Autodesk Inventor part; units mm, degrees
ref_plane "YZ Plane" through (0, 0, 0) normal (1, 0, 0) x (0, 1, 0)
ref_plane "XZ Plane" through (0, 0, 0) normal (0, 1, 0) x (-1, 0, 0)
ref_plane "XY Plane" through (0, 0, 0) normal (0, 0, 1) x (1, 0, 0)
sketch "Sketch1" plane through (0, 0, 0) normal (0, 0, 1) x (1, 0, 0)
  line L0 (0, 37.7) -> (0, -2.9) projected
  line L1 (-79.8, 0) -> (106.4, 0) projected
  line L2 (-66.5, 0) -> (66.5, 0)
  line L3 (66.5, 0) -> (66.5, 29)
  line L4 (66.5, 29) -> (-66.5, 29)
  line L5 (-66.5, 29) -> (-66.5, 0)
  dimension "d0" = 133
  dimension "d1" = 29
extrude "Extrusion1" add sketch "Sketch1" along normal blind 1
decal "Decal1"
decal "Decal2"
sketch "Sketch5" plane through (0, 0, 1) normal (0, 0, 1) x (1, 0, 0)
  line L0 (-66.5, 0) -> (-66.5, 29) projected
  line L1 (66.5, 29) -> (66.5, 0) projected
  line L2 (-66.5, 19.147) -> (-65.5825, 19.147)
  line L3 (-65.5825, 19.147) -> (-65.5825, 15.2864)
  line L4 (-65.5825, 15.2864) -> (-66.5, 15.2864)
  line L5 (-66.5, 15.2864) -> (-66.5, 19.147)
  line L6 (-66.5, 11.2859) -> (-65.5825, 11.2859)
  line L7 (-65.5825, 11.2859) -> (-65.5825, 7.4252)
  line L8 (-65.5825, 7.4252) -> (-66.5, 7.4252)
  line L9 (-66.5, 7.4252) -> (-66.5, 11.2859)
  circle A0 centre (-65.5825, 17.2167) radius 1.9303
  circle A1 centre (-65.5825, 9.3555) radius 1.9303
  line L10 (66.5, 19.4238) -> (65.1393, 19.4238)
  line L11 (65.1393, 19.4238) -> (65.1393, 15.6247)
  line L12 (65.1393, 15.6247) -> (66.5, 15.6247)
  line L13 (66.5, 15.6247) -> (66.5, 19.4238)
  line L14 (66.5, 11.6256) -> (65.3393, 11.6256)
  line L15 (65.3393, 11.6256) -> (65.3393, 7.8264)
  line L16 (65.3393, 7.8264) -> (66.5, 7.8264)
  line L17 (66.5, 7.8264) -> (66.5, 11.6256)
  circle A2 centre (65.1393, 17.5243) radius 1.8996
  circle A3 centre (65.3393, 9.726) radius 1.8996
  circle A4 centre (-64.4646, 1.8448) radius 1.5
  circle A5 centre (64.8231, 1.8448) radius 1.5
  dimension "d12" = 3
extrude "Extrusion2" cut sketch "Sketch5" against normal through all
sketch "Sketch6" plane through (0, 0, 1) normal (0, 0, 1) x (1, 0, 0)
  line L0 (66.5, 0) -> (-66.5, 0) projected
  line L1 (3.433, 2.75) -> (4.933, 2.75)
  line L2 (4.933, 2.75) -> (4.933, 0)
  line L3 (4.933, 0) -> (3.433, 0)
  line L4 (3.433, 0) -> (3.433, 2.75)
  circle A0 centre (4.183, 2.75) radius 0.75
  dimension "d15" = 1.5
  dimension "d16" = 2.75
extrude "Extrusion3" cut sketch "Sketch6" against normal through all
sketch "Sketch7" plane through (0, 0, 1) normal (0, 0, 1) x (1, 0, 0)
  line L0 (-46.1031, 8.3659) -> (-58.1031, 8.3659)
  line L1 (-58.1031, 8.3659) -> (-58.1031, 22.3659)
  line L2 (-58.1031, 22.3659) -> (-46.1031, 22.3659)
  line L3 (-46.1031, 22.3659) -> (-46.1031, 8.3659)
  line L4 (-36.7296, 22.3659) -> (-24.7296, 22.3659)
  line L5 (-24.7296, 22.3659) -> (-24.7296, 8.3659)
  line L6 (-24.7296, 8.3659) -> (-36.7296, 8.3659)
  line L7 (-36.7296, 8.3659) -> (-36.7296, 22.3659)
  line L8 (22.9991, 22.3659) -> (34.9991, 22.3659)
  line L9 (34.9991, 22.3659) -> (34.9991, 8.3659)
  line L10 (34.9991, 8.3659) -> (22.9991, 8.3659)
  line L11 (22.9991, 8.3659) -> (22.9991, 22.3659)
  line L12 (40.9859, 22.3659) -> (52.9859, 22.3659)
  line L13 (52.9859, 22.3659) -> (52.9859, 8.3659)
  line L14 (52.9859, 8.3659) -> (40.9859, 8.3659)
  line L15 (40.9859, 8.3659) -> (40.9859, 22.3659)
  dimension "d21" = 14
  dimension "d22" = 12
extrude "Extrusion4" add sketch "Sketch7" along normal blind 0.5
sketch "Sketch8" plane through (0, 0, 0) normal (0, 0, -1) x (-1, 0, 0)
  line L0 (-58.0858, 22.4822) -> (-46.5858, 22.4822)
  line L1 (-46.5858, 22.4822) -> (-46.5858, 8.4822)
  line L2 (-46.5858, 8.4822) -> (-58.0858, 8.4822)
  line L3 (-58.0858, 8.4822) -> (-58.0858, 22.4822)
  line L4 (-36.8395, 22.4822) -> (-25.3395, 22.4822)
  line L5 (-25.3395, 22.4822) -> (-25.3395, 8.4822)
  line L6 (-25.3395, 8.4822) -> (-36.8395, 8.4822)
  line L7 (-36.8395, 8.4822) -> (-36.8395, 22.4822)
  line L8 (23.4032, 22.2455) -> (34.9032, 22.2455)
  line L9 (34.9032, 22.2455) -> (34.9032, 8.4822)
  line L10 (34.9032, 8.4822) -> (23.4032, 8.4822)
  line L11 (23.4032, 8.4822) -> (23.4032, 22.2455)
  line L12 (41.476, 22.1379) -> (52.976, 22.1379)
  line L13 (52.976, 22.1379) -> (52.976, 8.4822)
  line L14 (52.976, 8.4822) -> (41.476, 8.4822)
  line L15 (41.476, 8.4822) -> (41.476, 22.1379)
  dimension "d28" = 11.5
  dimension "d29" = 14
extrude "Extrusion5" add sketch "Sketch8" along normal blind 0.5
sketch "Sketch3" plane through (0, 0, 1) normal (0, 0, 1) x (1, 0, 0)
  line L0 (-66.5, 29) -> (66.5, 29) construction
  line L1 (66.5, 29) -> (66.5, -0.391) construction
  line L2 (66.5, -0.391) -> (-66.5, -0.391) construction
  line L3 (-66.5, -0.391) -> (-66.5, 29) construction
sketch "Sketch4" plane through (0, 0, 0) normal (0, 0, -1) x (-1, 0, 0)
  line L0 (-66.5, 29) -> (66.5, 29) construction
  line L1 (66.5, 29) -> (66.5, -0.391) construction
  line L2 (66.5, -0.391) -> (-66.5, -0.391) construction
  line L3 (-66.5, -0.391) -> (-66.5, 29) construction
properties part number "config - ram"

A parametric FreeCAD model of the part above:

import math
import FreeCAD as App
import Part
import Sketcher
from FreeCAD import Vector


def add_polygon(sketch, points):
    """Adds a closed chain of lines whose ends are joined by coincident constraints."""
    first, n = sketch.GeometryCount, len(points)
    for a, b in zip(points, points[1:] + points[:1]):
        sketch.addGeometry(Part.LineSegment(App.Vector(*a, 0), App.Vector(*b, 0)), False)
    for i in range(n):
        sketch.addConstraint(Sketcher.Constraint("Coincident", first + i, 2, first + (i + 1) % n, 1))

doc = App.newDocument("Part")
body = doc.addObject("PartDesign::Body", "Body")

# Sketch on XY plane
sketch1 = body.newObject("Sketcher::SketchObject", "Sketch")
sketch1.AttachmentSupport = (doc.getObject("XY_Plane"), [""])
sketch1.MapMode = "FlatFace"
add_polygon(sketch1, [(66.5, 29), (-66.5, 29), (-66.5, 0), (66.5, 0)])  # lines 0-3
sketch1.addConstraint(Sketcher.Constraint("Horizontal", 0))
sketch1.addConstraint(Sketcher.Constraint("Vertical", 1))
sketch1.addConstraint(Sketcher.Constraint("Horizontal", 2))
sketch1.addConstraint(Sketcher.Constraint("Vertical", 3))
sketch1.addConstraint(Sketcher.Constraint("Symmetric", 1, 2, 2, 2, -1, 1))
sketch1.addConstraint(Sketcher.Constraint("DistanceX", 0, 2, 0, 1, 133.0))
sketch1.addConstraint(Sketcher.Constraint("DistanceY", 1, 2, 1, 1, 29.0))
pad1 = body.newObject("PartDesign::Pad", "Pad")
pad1.Profile = sketch1
pad1.Length = 1

# Sketch on XY plane
sketch2 = body.newObject("Sketcher::SketchObject", "Sketch001")
sketch2.AttachmentSupport = (doc.getObject("XY_Plane"), [""])
sketch2.MapMode = "FlatFace"
sketch2.AttachmentOffset = App.Placement(Vector(0, 0, 1), App.Rotation())
sketch2.addGeometry(Part.LineSegment(Vector(-66.5, 15.518391, 0), Vector(-66.5, 15.2864, 0)), False)
sketch2.addGeometry(Part.LineSegment(Vector(-66.5, 15.2864, 0), Vector(-65.5825, 15.2864, 0)), False)
sketch2.addGeometry(Part.ArcOfCircle(Part.Circle(Vector(-65.5825, 17.2167, 0), Vector(0, 0, 1), 1.9303), math.radians(-90), math.radians(90)), False)
sketch2.addGeometry(Part.LineSegment(Vector(-65.5825, 19.147, 0), Vector(-66.5, 19.147, 0)), False)
sketch2.addGeometry(Part.LineSegment(Vector(-66.5, 19.147, 0), Vector(-66.5, 18.915009, 0)), False)
sketch2.addGeometry(Part.ArcOfCircle(Part.Circle(Vector(-65.5825, 17.2167, 0), Vector(0, 0, 1), 1.9303), math.radians(118.379843), math.radians(241.620157)), False)
sketch2.addGeometry(Part.LineSegment(Vector(-65.5825, 11.2859, 0), Vector(-66.5, 11.2859, 0)), False)
sketch2.addGeometry(Part.LineSegment(Vector(-66.5, 11.2859, 0), Vector(-66.5, 11.053809, 0)), False)
sketch2.addGeometry(Part.ArcOfCircle(Part.Circle(Vector(-65.5825, 9.3555, 0), Vector(0, 0, 1), 1.9303), math.radians(118.379843), math.radians(241.620157)), False)
sketch2.addGeometry(Part.LineSegment(Vector(-66.5, 7.657191, 0), Vector(-66.5, 7.4252, 0)), False)
sketch2.addGeometry(Part.LineSegment(Vector(-66.5, 7.4252, 0), Vector(-65.5825, 7.4252, 0)), False)
sketch2.addGeometry(Part.ArcOfCircle(Part.Circle(Vector(-65.5825, 9.3555, 0), Vector(0, 0, 1), 1.9303), math.radians(-90), math.radians(90)), False)
sketch2.addGeometry(Part.LineSegment(Vector(66.5, 11.229747, 0), Vector(66.5, 11.6256, 0)), False)
sketch2.addGeometry(Part.LineSegment(Vector(66.5, 11.6256, 0), Vector(65.3393, 11.6256, 0)), False)
sketch2.addGeometry(Part.ArcOfCircle(Part.Circle(Vector(65.3393, 9.726, 0), Vector(0, 0, 1), 1.8996), math.radians(90), math.radians(270)), False)
sketch2.addGeometry(Part.LineSegment(Vector(65.3393, 7.8264, 0), Vector(66.5, 7.8264, 0)), False)
sketch2.addGeometry(Part.LineSegment(Vector(66.5, 7.8264, 0), Vector(66.5, 8.222253, 0)), False)
sketch2.addGeometry(Part.ArcOfCircle(Part.Circle(Vector(65.3393, 9.726, 0), Vector(0, 0, 1), 1.8996), math.radians(-52.336464), math.radians(52.336464)), False)
sketch2.addGeometry(Part.LineSegment(Vector(65.1393, 15.6247, 0), Vector(66.5, 15.6247, 0)), False)
sketch2.addGeometry(Part.LineSegment(Vector(66.5, 15.6247, 0), Vector(66.5, 16.19879, 0)), False)
sketch2.addGeometry(Part.ArcOfCircle(Part.Circle(Vector(65.1393, 17.5243, 0), Vector(0, 0, 1), 1.8996), math.radians(-44.249445), math.radians(44.249445)), False)
sketch2.addGeometry(Part.LineSegment(Vector(66.5, 18.84981, 0), Vector(66.5, 19.4238, 0)), False)
sketch2.addGeometry(Part.LineSegment(Vector(66.5, 19.4238, 0), Vector(65.1393, 19.4238, 0)), False)
sketch2.addGeometry(Part.ArcOfCircle(Part.Circle(Vector(65.1393, 17.5243, 0), Vector(0, 0, 1), 1.8996), math.radians(90), math.radians(270)), False)
sketch2.addGeometry(Part.Circle(Vector(-64.4646, 1.8448, 0), Vector(0, 0, 1), 1.5), False)
sketch2.addGeometry(Part.Circle(Vector(64.8231, 1.8448, 0), Vector(0, 0, 1), 1.5), False)
sketch2.addConstraint(Sketcher.Constraint("Coincident", 0, 2, 1, 1))
sketch2.addConstraint(Sketcher.Constraint("Tangent", 1, 2, 2, 1))
sketch2.addConstraint(Sketcher.Constraint("Tangent", 2, 2, 3, 1))
sketch2.addConstraint(Sketcher.Constraint("Coincident", 3, 2, 4, 1))
sketch2.addConstraint(Sketcher.Constraint("Coincident", 4, 2, 5, 1))
sketch2.addConstraint(Sketcher.Constraint("Coincident", 5, 2, 0, 1))
sketch2.addConstraint(Sketcher.Constraint("Coincident", 6, 2, 7, 1))
sketch2.addConstraint(Sketcher.Constraint("Coincident", 7, 2, 8, 1))
sketch2.addConstraint(Sketcher.Constraint("Coincident", 8, 2, 9, 1))
sketch2.addConstraint(Sketcher.Constraint("Coincident", 9, 2, 10, 1))
sketch2.addConstraint(Sketcher.Constraint("Tangent", 10, 2, 11, 1))
sketch2.addConstraint(Sketcher.Constraint("Tangent", 11, 2, 6, 1))
sketch2.addConstraint(Sketcher.Constraint("Coincident", 12, 2, 13, 1))
sketch2.addConstraint(Sketcher.Constraint("Tangent", 13, 2, 14, 1))
sketch2.addConstraint(Sketcher.Constraint("Tangent", 14, 2, 15, 1))
sketch2.addConstraint(Sketcher.Constraint("Coincident", 15, 2, 16, 1))
sketch2.addConstraint(Sketcher.Constraint("Coincident", 16, 2, 17, 1))
sketch2.addConstraint(Sketcher.Constraint("Coincident", 17, 2, 12, 1))
sketch2.addConstraint(Sketcher.Constraint("Coincident", 18, 2, 19, 1))
sketch2.addConstraint(Sketcher.Constraint("Coincident", 19, 2, 20, 1))
sketch2.addConstraint(Sketcher.Constraint("Coincident", 20, 2, 21, 1))
sketch2.addConstraint(Sketcher.Constraint("Coincident", 21, 2, 22, 1))
sketch2.addConstraint(Sketcher.Constraint("Tangent", 22, 2, 23, 1))
sketch2.addConstraint(Sketcher.Constraint("Tangent", 23, 2, 18, 1))
sketch2.addConstraint(Sketcher.Constraint("Vertical", 0))
sketch2.addConstraint(Sketcher.Constraint("Horizontal", 1))
sketch2.addConstraint(Sketcher.Constraint("Horizontal", 3))
sketch2.addConstraint(Sketcher.Constraint("Vertical", 4))
sketch2.addConstraint(Sketcher.Constraint("Horizontal", 6))
sketch2.addConstraint(Sketcher.Constraint("Vertical", 7))
sketch2.addConstraint(Sketcher.Constraint("Vertical", 9))
sketch2.addConstraint(Sketcher.Constraint("Horizontal", 10))
sketch2.addConstraint(Sketcher.Constraint("Vertical", 12))
sketch2.addConstraint(Sketcher.Constraint("Horizontal", 13))
sketch2.addConstraint(Sketcher.Constraint("Horizontal", 15))
sketch2.addConstraint(Sketcher.Constraint("Vertical", 16))
sketch2.addConstraint(Sketcher.Constraint("Horizontal", 18))
sketch2.addConstraint(Sketcher.Constraint("Vertical", 19))
sketch2.addConstraint(Sketcher.Constraint("Vertical", 21))
sketch2.addConstraint(Sketcher.Constraint("Horizontal", 22))
sketch2.addConstraint(Sketcher.Constraint("Coincident", 5, 3, 2, 3))
sketch2.addConstraint(Sketcher.Constraint("Coincident", 11, 3, 8, 3))
sketch2.addConstraint(Sketcher.Constraint("Coincident", 17, 3, 14, 3))
sketch2.addConstraint(Sketcher.Constraint("Coincident", 23, 3, 20, 3))
sketch2.addConstraint(Sketcher.Constraint("Equal", 2, 5))
sketch2.addConstraint(Sketcher.Constraint("Equal", 5, 8))
sketch2.addConstraint(Sketcher.Constraint("Equal", 8, 11))
sketch2.addConstraint(Sketcher.Constraint("Equal", 14, 17))
sketch2.addConstraint(Sketcher.Constraint("Equal", 17, 20))
sketch2.addConstraint(Sketcher.Constraint("Equal", 20, 23))
sketch2.addConstraint(Sketcher.Constraint("Equal", 24, 25))
sketch2.addConstraint(Sketcher.Constraint("Horizontal", 24, 3, 25, 3))
sketch2.addConstraint(Sketcher.Constraint("Vertical", 5, 3, 8, 3))
sketch2.addConstraint(Sketcher.Constraint("Vertical", 0, 2, 3, 2))
sketch2.addConstraint(Sketcher.Constraint("Vertical", 5, 2, 6, 2))
sketch2.addConstraint(Sketcher.Constraint("Vertical", 7, 2, 8, 2))
sketch2.addConstraint(Sketcher.Constraint("Vertical", 12, 2, 15, 2))
sketch2.addConstraint(Sketcher.Constraint("Vertical", 17, 2, 18, 2))
sketch2.addConstraint(Sketcher.Constraint("Vertical", 19, 2, 20, 2))
sketch2.addConstraint(Sketcher.Constraint("Diameter", 24, 3.0))
sketch2.addConstraint(Sketcher.Constraint("DistanceX", 0, 2, -1, 1, 66.5))
sketch2.addConstraint(Sketcher.Constraint("DistanceX", -1, 1, 12, 2, 66.5))
sketch2.addConstraint(Sketcher.Constraint("Radius", 2, 1.9303))
sketch2.addConstraint(Sketcher.Constraint("Radius", 14, 1.8996))
sketch2.addConstraint(Sketcher.Constraint("DistanceX", 20, 3, 14, 3, 0.2))
sketch2.addConstraint(Sketcher.Constraint("DistanceY", 0, 2, 0, 1, 0.232))
sketch2.addConstraint(Sketcher.Constraint("DistanceY", 19, 1, 19, 2, 0.574))
sketch2.addConstraint(Sketcher.Constraint("DistanceY", -1, 1, 14, 3, 9.726))
sketch2.addConstraint(Sketcher.Constraint("DistanceX", -1, 1, 25, 3, 64.823))
sketch2.addConstraint(Sketcher.Constraint("DistanceY", -1, 1, 2, 2, 19.147))
sketch2.addConstraint(Sketcher.Constraint("DistanceY", -1, 1, 6, 2, 11.286))
sketch2.addConstraint(Sketcher.Constraint("DistanceX", 8, 3, 24, 3, 1.118))
sketch2.addConstraint(Sketcher.Constraint("DistanceY", 24, 3, 2, 3, 15.372))
sketch2.addConstraint(Sketcher.Constraint("DistanceY", 12, 2, 18, 2, 3.999))
pocket1 = body.newObject("PartDesign::Pocket", "Pocket")
pocket1.Profile = sketch2
pocket1.Type = "ThroughAll"

# Sketch on XY plane
sketch3 = body.newObject("Sketcher::SketchObject", "Sketch002")
sketch3.AttachmentSupport = (doc.getObject("XY_Plane"), [""])
sketch3.MapMode = "FlatFace"
sketch3.AttachmentOffset = App.Placement(Vector(0, 0, 1), App.Rotation())
sketch3.addGeometry(Part.LineSegment(Vector(3.433, 0, 0), Vector(4.933, 0, 0)), False)
sketch3.addGeometry(Part.LineSegment(Vector(4.933, 0, 0), Vector(4.933, 2.75, 0)), False)
sketch3.addGeometry(Part.ArcOfCircle(Part.Circle(Vector(4.183, 2.75, 0), Vector(0, 0, 1), 0.75), math.radians(0), math.radians(180)), False)
sketch3.addGeometry(Part.LineSegment(Vector(3.433, 2.75, 0), Vector(3.433, 0, 0)), False)
sketch3.addConstraint(Sketcher.Constraint("Coincident", 0, 2, 1, 1))
sketch3.addConstraint(Sketcher.Constraint("Tangent", 1, 2, 2, 1))
sketch3.addConstraint(Sketcher.Constraint("Tangent", 2, 2, 3, 1))
sketch3.addConstraint(Sketcher.Constraint("Coincident", 3, 2, 0, 1))
sketch3.addConstraint(Sketcher.Constraint("Horizontal", 0))
sketch3.addConstraint(Sketcher.Constraint("Vertical", 1))
sketch3.addConstraint(Sketcher.Constraint("Vertical", 3))
sketch3.addConstraint(Sketcher.Constraint("PointOnObject", 0, 2, -1))
sketch3.addConstraint(Sketcher.Constraint("Radius", 2, 0.75))
sketch3.addConstraint(Sketcher.Constraint("DistanceY", 1, 1, 1, 2, 2.75))
sketch3.addConstraint(Sketcher.Constraint("DistanceX", -1, 1, 2, 3, 4.183))
pocket2 = body.newObject("PartDesign::Pocket", "Pocket001")
pocket2.Profile = sketch3
pocket2.Type = "ThroughAll"

# Sketch on XY plane
sketch4 = body.newObject("Sketcher::SketchObject", "Sketch003")
sketch4.AttachmentSupport = (doc.getObject("XY_Plane"), [""])
sketch4.MapMode = "FlatFace"
sketch4.AttachmentOffset = App.Placement(Vector(0, 0, 1), App.Rotation())
add_polygon(sketch4, [(-58.1031, 8.3659), (-46.1031, 8.3659), (-46.1031, 22.3659), (-58.1031, 22.3659)])  # lines 0-3
add_polygon(sketch4, [(-24.7296, 22.3659), (-36.7296, 22.3659), (-36.7296, 8.3659), (-24.7296, 8.3659)])  # lines 4-7
add_polygon(sketch4, [(34.9991, 22.3659), (22.9991, 22.3659), (22.9991, 8.3659), (34.9991, 8.3659)])  # lines 8-11
add_polygon(sketch4, [(52.9859, 22.3659), (40.9859, 22.3659), (40.9859, 8.3659), (52.9859, 8.3659)])  # lines 12-15
sketch4.addConstraint(Sketcher.Constraint("Horizontal", 0))
sketch4.addConstraint(Sketcher.Constraint("Vertical", 1))
sketch4.addConstraint(Sketcher.Constraint("Horizontal", 2))
sketch4.addConstraint(Sketcher.Constraint("Vertical", 3))
sketch4.addConstraint(Sketcher.Constraint("Horizontal", 4))
sketch4.addConstraint(Sketcher.Constraint("Vertical", 5))
sketch4.addConstraint(Sketcher.Constraint("Horizontal", 6))
sketch4.addConstraint(Sketcher.Constraint("Vertical", 7))
sketch4.addConstraint(Sketcher.Constraint("Horizontal", 8))
sketch4.addConstraint(Sketcher.Constraint("Vertical", 9))
sketch4.addConstraint(Sketcher.Constraint("Horizontal", 10))
sketch4.addConstraint(Sketcher.Constraint("Vertical", 11))
sketch4.addConstraint(Sketcher.Constraint("Horizontal", 12))
sketch4.addConstraint(Sketcher.Constraint("Vertical", 13))
sketch4.addConstraint(Sketcher.Constraint("Horizontal", 14))
sketch4.addConstraint(Sketcher.Constraint("Vertical", 15))
sketch4.addConstraint(Sketcher.Constraint("Horizontal", 2, 2, 4, 2))
sketch4.addConstraint(Sketcher.Constraint("Horizontal", 3, 2, 5, 2))
sketch4.addConstraint(Sketcher.Constraint("Horizontal", 7, 2, 8, 2))
sketch4.addConstraint(Sketcher.Constraint("Horizontal", 6, 2, 9, 2))
sketch4.addConstraint(Sketcher.Constraint("Horizontal", 11, 2, 12, 2))
sketch4.addConstraint(Sketcher.Constraint("Horizontal", 10, 2, 13, 2))
sketch4.addConstraint(Sketcher.Constraint("Equal", 2, 4))
sketch4.addConstraint(Sketcher.Constraint("Equal", 6, 8))
sketch4.addConstraint(Sketcher.Constraint("Equal", 10, 12))
sketch4.addConstraint(Sketcher.Constraint("DistanceX", 0, 1, 0, 2, 12.0))
sketch4.addConstraint(Sketcher.Constraint("DistanceY", 1, 1, 1, 2, 14.0))
sketch4.addConstraint(Sketcher.Constraint("DistanceX", 0, 2, -1, 1, 46.103))
sketch4.addConstraint(Sketcher.Constraint("DistanceY", -1, 1, 0, 2, 8.366))
sketch4.addConstraint(Sketcher.Constraint("DistanceX", -1, 1, 8, 2, 22.999))
sketch4.addConstraint(Sketcher.Constraint("DistanceX", -1, 1, 12, 2, 40.986))
sketch4.addConstraint(Sketcher.Constraint("DistanceX", 4, 2, -1, 1, 36.7296))
pad2 = body.newObject("PartDesign::Pad", "Pad001")
pad2.Profile = sketch4
pad2.Length = 0.5

# Sketch on XY plane
sketch5 = body.newObject("Sketcher::SketchObject", "Sketch004")
sketch5.AttachmentSupport = (doc.getObject("XY_Plane"), [""])
sketch5.MapMode = "FlatFace"
add_polygon(sketch5, [(46.5858, 22.4822), (58.0858, 22.4822), (58.0858, 8.4822), (46.5858, 8.4822)])  # lines 0-3
add_polygon(sketch5, [(25.3395, 22.4822), (36.8395, 22.4822), (36.8395, 8.4822), (25.3395, 8.4822)])  # lines 4-7
add_polygon(sketch5, [(-34.9032, 22.2455), (-23.4032, 22.2455), (-23.4032, 8.4822), (-34.9032, 8.4822)])  # lines 8-11
add_polygon(sketch5, [(-52.976, 22.1379), (-41.476, 22.1379), (-41.476, 8.4822), (-52.976, 8.4822)])  # lines 12-15
sketch5.addConstraint(Sketcher.Constraint("Horizontal", 0))
sketch5.addConstraint(Sketcher.Constraint("Vertical", 1))
sketch5.addConstraint(Sketcher.Constraint("Horizontal", 2))
sketch5.addConstraint(Sketcher.Constraint("Vertical", 3))
sketch5.addConstraint(Sketcher.Constraint("Horizontal", 4))
sketch5.addConstraint(Sketcher.Constraint("Vertical", 5))
sketch5.addConstraint(Sketcher.Constraint("Horizontal", 6))
sketch5.addConstraint(Sketcher.Constraint("Vertical", 7))
sketch5.addConstraint(Sketcher.Constraint("Horizontal", 8))
sketch5.addConstraint(Sketcher.Constraint("Vertical", 9))
sketch5.addConstraint(Sketcher.Constraint("Horizontal", 10))
sketch5.addConstraint(Sketcher.Constraint("Vertical", 11))
sketch5.addConstraint(Sketcher.Constraint("Horizontal", 12))
sketch5.addConstraint(Sketcher.Constraint("Vertical", 13))
sketch5.addConstraint(Sketcher.Constraint("Horizontal", 14))
sketch5.addConstraint(Sketcher.Constraint("Vertical", 15))
sketch5.addConstraint(Sketcher.Constraint("Horizontal", 3, 2, 4, 2))
sketch5.addConstraint(Sketcher.Constraint("Horizontal", 2, 2, 5, 2))
sketch5.addConstraint(Sketcher.Constraint("Horizontal", 6, 2, 9, 2))
sketch5.addConstraint(Sketcher.Constraint("Horizontal", 10, 2, 13, 2))
sketch5.addConstraint(Sketcher.Constraint("Equal", 2, 4))
sketch5.addConstraint(Sketcher.Constraint("Equal", 6, 8))
sketch5.addConstraint(Sketcher.Constraint("Equal", 10, 12))
sketch5.addConstraint(Sketcher.Constraint("DistanceY", 1, 2, 1, 1, 14.0))
sketch5.addConstraint(Sketcher.Constraint("DistanceX", 0, 1, 0, 2, 11.5))
sketch5.addConstraint(Sketcher.Constraint("DistanceY", 9, 2, 9, 1, 13.7633))
sketch5.addConstraint(Sketcher.Constraint("DistanceY", 13, 2, 13, 1, 13.6557))
sketch5.addConstraint(Sketcher.Constraint("DistanceX", 12, 2, -1, 1, 41.476))
sketch5.addConstraint(Sketcher.Constraint("DistanceY", -1, 1, 12, 2, 22.138))
sketch5.addConstraint(Sketcher.Constraint("DistanceX", 8, 2, 3, 2, 69.989))
sketch5.addConstraint(Sketcher.Constraint("DistanceX", -1, 1, 0, 2, 58.0858))
sketch5.addConstraint(Sketcher.Constraint("DistanceX", -1, 1, 4, 2, 36.8395))
pad3 = body.newObject("PartDesign::Pad", "Pad002")
pad3.Profile = sketch5
pad3.Length = 0.5
pad3.Reversed = True

doc.recompute()
